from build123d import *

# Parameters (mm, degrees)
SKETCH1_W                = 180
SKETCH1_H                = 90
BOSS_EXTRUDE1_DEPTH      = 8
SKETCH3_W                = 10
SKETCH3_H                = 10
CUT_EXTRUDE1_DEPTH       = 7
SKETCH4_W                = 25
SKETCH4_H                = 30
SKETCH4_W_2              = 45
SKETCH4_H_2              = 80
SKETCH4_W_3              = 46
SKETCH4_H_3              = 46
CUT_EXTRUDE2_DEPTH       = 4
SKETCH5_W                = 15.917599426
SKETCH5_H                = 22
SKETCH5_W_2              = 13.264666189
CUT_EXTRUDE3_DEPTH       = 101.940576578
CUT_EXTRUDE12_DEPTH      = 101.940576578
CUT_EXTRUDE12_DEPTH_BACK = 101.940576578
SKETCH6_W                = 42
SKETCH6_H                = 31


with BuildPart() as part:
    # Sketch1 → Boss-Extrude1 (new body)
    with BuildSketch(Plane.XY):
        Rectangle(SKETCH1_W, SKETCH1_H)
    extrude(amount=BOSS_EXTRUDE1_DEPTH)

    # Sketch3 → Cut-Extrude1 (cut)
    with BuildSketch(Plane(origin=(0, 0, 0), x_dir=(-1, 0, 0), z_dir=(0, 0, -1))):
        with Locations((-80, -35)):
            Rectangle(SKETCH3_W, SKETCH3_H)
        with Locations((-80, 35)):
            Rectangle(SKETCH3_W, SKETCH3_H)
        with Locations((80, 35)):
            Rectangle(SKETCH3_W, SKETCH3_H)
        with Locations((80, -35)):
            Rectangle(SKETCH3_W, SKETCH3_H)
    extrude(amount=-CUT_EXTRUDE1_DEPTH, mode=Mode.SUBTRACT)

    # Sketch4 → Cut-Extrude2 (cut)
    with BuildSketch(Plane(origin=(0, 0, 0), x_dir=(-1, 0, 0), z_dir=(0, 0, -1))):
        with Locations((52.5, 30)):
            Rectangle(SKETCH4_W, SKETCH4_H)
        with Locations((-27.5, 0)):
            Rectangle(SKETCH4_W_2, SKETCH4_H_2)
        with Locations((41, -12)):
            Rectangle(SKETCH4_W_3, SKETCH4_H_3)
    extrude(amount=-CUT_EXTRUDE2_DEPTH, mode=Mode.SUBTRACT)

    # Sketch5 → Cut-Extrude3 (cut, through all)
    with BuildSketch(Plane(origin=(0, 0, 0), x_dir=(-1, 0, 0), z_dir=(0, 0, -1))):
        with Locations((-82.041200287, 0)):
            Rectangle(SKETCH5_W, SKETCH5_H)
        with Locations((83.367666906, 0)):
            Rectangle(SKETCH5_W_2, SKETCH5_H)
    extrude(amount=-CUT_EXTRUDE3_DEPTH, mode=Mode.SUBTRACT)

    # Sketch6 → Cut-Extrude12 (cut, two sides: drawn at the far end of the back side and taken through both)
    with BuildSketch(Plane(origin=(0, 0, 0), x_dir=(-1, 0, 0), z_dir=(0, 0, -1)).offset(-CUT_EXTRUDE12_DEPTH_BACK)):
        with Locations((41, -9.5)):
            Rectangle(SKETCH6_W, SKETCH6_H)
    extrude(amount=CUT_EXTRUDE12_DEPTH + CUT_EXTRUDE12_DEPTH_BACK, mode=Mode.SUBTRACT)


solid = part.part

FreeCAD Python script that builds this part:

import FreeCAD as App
import Part
import Sketcher

V = App.Vector

doc = App.newDocument("Part")
body = doc.addObject("PartDesign::Body", "Body")

sketch1 = body.newObject("Sketcher::SketchObject", "Sketch")
sketch1.AttachmentSupport = (doc.getObject("XY_Plane"), [""])
sketch1.MapMode = "FlatFace"
sketch1.addGeometry(Part.LineSegment(V(-90, 45, 0), V(-90, -45, 0)), False)
sketch1.addGeometry(Part.LineSegment(V(-90, -45, 0), V(90, -45, 0)), False)
sketch1.addGeometry(Part.LineSegment(V(90, -45, 0), V(90, 45, 0)), False)
sketch1.addGeometry(Part.LineSegment(V(90, 45, 0), V(-90, 45, 0)), False)
sketch1.addConstraint(Sketcher.Constraint("Coincident", 0, 2, 1, 1))
sketch1.addConstraint(Sketcher.Constraint("Coincident", 1, 2, 2, 1))
sketch1.addConstraint(Sketcher.Constraint("Coincident", 2, 2, 3, 1))
sketch1.addConstraint(Sketcher.Constraint("Coincident", 3, 2, 0, 1))
sketch1.addConstraint(Sketcher.Constraint("Vertical", 0))
sketch1.addConstraint(Sketcher.Constraint("Horizontal", 1))
sketch1.addConstraint(Sketcher.Constraint("Vertical", 2))
sketch1.addConstraint(Sketcher.Constraint("Horizontal", 3))
sketch1.addConstraint(Sketcher.Constraint("Symmetric", 0, 2, 2, 2, -1, 1))
sketch1.addConstraint(Sketcher.Constraint("DistanceX", 1, 1, 1, 2, 180.0))
sketch1.addConstraint(Sketcher.Constraint("DistanceY", 0, 2, 0, 1, 90.0))
pad1 = body.newObject("PartDesign::Pad", "Pad")
pad1.Profile = sketch1
pad1.Length = 8

sketch2 = body.newObject("Sketcher::SketchObject", "Sketch001")
sketch2.AttachmentSupport = (doc.getObject("XY_Plane"), [""])
sketch2.MapMode = "FlatFace"
sketch2.addGeometry(Part.LineSegment(V(85, -30, 0), V(85, -40, 0)), False)
sketch2.addGeometry(Part.LineSegment(V(85, -40, 0), V(75, -40, 0)), False)
sketch2.addGeometry(Part.LineSegment(V(75, -40, 0), V(75, -30, 0)), False)
sketch2.addGeometry(Part.LineSegment(V(75, -30, 0), V(85, -30, 0)), False)
sketch2.addGeometry(Part.LineSegment(V(85, 40, 0), V(85, 30, 0)), False)
sketch2.addGeometry(Part.LineSegment(V(85, 30, 0), V(75, 30, 0)), False)
sketch2.addGeometry(Part.LineSegment(V(75, 30, 0), V(75, 40, 0)), False)
sketch2.addGeometry(Part.LineSegment(V(75, 40, 0), V(85, 40, 0)), False)
sketch2.addGeometry(Part.LineSegment(V(-75, 40, 0), V(-75, 30, 0)), False)
sketch2.addGeometry(Part.LineSegment(V(-75, 30, 0), V(-85, 30, 0)), False)
sketch2.addGeometry(Part.LineSegment(V(-85, 30, 0), V(-85, 40, 0)), False)
sketch2.addGeometry(Part.LineSegment(V(-85, 40, 0), V(-75, 40, 0)), False)
sketch2.addGeometry(Part.LineSegment(V(-75, -30, 0), V(-75, -40, 0)), False)
sketch2.addGeometry(Part.LineSegment(V(-75, -40, 0), V(-85, -40, 0)), False)
sketch2.addGeometry(Part.LineSegment(V(-85, -40, 0), V(-85, -30, 0)), False)
sketch2.addGeometry(Part.LineSegment(V(-85, -30, 0), V(-75, -30, 0)), False)
sketch2.addConstraint(Sketcher.Constraint("Coincident", 0, 2, 1, 1))
sketch2.addConstraint(Sketcher.Constraint("Coincident", 1, 2, 2, 1))
sketch2.addConstraint(Sketcher.Constraint("Coincident", 2, 2, 3, 1))
sketch2.addConstraint(Sketcher.Constraint("Coincident", 3, 2, 0, 1))
sketch2.addConstraint(Sketcher.Constraint("Coincident", 4, 2, 5, 1))
sketch2.addConstraint(Sketcher.Constraint("Coincident", 5, 2, 6, 1))
sketch2.addConstraint(Sketcher.Constraint("Coincident", 6, 2, 7, 1))
sketch2.addConstraint(Sketcher.Constraint("Coincident", 7, 2, 4, 1))
sketch2.addConstraint(Sketcher.Constraint("Coincident", 8, 2, 9, 1))
sketch2.addConstraint(Sketcher.Constraint("Coincident", 9, 2, 10, 1))
sketch2.addConstraint(Sketcher.Constraint("Coincident", 10, 2, 11, 1))
sketch2.addConstraint(Sketcher.Constraint("Coincident", 11, 2, 8, 1))
sketch2.addConstraint(Sketcher.Constraint("Coincident", 12, 2, 13, 1))
sketch2.addConstraint(Sketcher.Constraint("Coincident", 13, 2, 14, 1))
sketch2.addConstraint(Sketcher.Constraint("Coincident", 14, 2, 15, 1))
sketch2.addConstraint(Sketcher.Constraint("Coincident", 15, 2, 12, 1))
sketch2.addConstraint(Sketcher.Constraint("Vertical", 0))
sketch2.addConstraint(Sketcher.Constraint("Horizontal", 1))
sketch2.addConstraint(Sketcher.Constraint("Vertical", 2))
sketch2.addConstraint(Sketcher.Constraint("Horizontal", 3))
sketch2.addConstraint(Sketcher.Constraint("Vertical", 4))
sketch2.addConstraint(Sketcher.Constraint("Horizontal", 5))
sketch2.addConstraint(Sketcher.Constraint("Vertical", 6))
sketch2.addConstraint(Sketcher.Constraint("Horizontal", 7))
sketch2.addConstraint(Sketcher.Constraint("Vertical", 8))
sketch2.addConstraint(Sketcher.Constraint("Horizontal", 9))
sketch2.addConstraint(Sketcher.Constraint("Vertical", 10))
sketch2.addConstraint(Sketcher.Constraint("Horizontal", 11))
sketch2.addConstraint(Sketcher.Constraint("Vertical", 12))
sketch2.addConstraint(Sketcher.Constraint("Horizontal", 13))
sketch2.addConstraint(Sketcher.Constraint("Vertical", 14))
sketch2.addConstraint(Sketcher.Constraint("Horizontal", 15))
sketch2.addConstraint(Sketcher.Constraint("Symmetric", 2, 2, 8, 2, -1, 1))
sketch2.addConstraint(Sketcher.Constraint("Symmetric", 0, 2, 10, 2, -1, 1))
sketch2.addConstraint(Sketcher.Constraint("Symmetric", 6, 2, 12, 2, -1, 1))
sketch2.addConstraint(Sketcher.Constraint("Symmetric", 4, 2, 14, 2, -1, 1))
sketch2.addConstraint(Sketcher.Constraint("Symmetric", 5, 2, 8, 2, -2))
sketch2.addConstraint(Sketcher.Constraint("Symmetric", 7, 2, 10, 2, -2))
sketch2.addConstraint(Sketcher.Constraint("Equal", 15, 0))
sketch2.addConstraint(Sketcher.Constraint("DistanceX", 1, 2, 1, 1, 10.0))
sketch2.addConstraint(Sketcher.Constraint("DistanceX", -1, 1, 0, 2, 85.0))
sketch2.addConstraint(Sketcher.Constraint("DistanceY", 0, 2, -1, 1, 40.0))
pocket1 = body.newObject("PartDesign::Pocket", "Pocket")
pocket1.Profile = sketch2
pocket1.Length = 7
pocket1.Reversed = True

sketch3 = body.newObject("Sketcher::SketchObject", "Sketch002")
sketch3.AttachmentSupport = (doc.getObject("XY_Plane"), [""])
sketch3.MapMode = "FlatFace"
sketch3.addGeometry(Part.LineSegment(V(-40, 45, 0), V(-40, 15, 0)), False)
sketch3.addGeometry(Part.LineSegment(V(-40, 15, 0), V(-65, 15, 0)), False)
sketch3.addGeometry(Part.LineSegment(V(-65, 15, 0), V(-65, 45, 0)), False)
sketch3.addGeometry(Part.LineSegment(V(-65, 45, 0), V(-40, 45, 0)), False)
sketch3.addGeometry(Part.LineSegment(V(50, 40, 0), V(50, -40, 0)), False)
sketch3.addGeometry(Part.LineSegment(V(50, -40, 0), V(5, -40, 0)), False)
sketch3.addGeometry(Part.LineSegment(V(5, -40, 0), V(5, 40, 0)), False)
sketch3.addGeometry(Part.LineSegment(V(5, 40, 0), V(50, 40, 0)), False)
sketch3.addGeometry(Part.LineSegment(V(-18, 11, 0), V(-18, -35, 0)), False)
sketch3.addGeometry(Part.LineSegment(V(-18, -35, 0), V(-64, -35, 0)), False)
sketch3.addGeometry(Part.LineSegment(V(-64, -35, 0), V(-64, 11, 0)), False)
sketch3.addGeometry(Part.LineSegment(V(-64, 11, 0), V(-18, 11, 0)), False)
sketch3.addConstraint(Sketcher.Constraint("Coincident", 0, 2, 1, 1))
sketch3.addConstraint(Sketcher.Constraint("Coincident", 1, 2, 2, 1))
sketch3.addConstraint(Sketcher.Constraint("Coincident", 2, 2, 3, 1))
sketch3.addConstraint(Sketcher.Constraint("Coincident", 3, 2, 0, 1))
sketch3.addConstraint(Sketcher.Constraint("Coincident", 4, 2, 5, 1))
sketch3.addConstraint(Sketcher.Constraint("Coincident", 5, 2, 6, 1))
sketch3.addConstraint(Sketcher.Constraint("Coincident", 6, 2, 7, 1))
sketch3.addConstraint(Sketcher.Constraint("Coincident", 7, 2, 4, 1))
sketch3.addConstraint(Sketcher.Constraint("Coincident", 8, 2, 9, 1))
sketch3.addConstraint(Sketcher.Constraint("Coincident", 9, 2, 10, 1))
sketch3.addConstraint(Sketcher.Constraint("Coincident", 10, 2, 11, 1))
sketch3.addConstraint(Sketcher.Constraint("Coincident", 11, 2, 8, 1))
sketch3.addConstraint(Sketcher.Constraint("Vertical", 0))
sketch3.addConstraint(Sketcher.Constraint("Horizontal", 1))
sketch3.addConstraint(Sketcher.Constraint("Vertical", 2))
sketch3.addConstraint(Sketcher.Constraint("Horizontal", 3))
sketch3.addConstraint(Sketcher.Constraint("Vertical", 4))
sketch3.addConstraint(Sketcher.Constraint("Horizontal", 5))
sketch3.addConstraint(Sketcher.Constraint("Vertical", 6))
sketch3.addConstraint(Sketcher.Constraint("Horizontal", 7))
sketch3.addConstraint(Sketcher.Constraint("Vertical", 8))
sketch3.addConstraint(Sketcher.Constraint("Horizontal", 9))
sketch3.addConstraint(Sketcher.Constraint("Vertical", 10))
sketch3.addConstraint(Sketcher.Constraint("Horizontal", 11))
sketch3.addConstraint(Sketcher.Constraint("Equal", 11, 8))
sketch3.addConstraint(Sketcher.Constraint("DistanceX", 1, 2, 1, 1, 25.0))
sketch3.addConstraint(Sketcher.Constraint("DistanceX", 5, 2, 5, 1, 45.0))
sketch3.addConstraint(Sketcher.Constraint("DistanceX", 9, 2, 9, 1, 46.0))
sketch3.addConstraint(Sketcher.Constraint("DistanceY", 0, 2, 0, 1, 30.0))
sketch3.addConstraint(Sketcher.Constraint("DistanceY", 4, 2, 4, 1, 80.0))
sketch3.addConstraint(Sketcher.Constraint("DistanceX", 0, 2, -1, 1, 40.0))
sketch3.addConstraint(Sketcher.Constraint("DistanceY", -1, 1, 0, 2, 15.0))
sketch3.addConstraint(Sketcher.Constraint("DistanceX", -1, 1, 4, 2, 50.0))
sketch3.addConstraint(Sketcher.Constraint("DistanceY", 4, 2, -1, 1, 40.0))
sketch3.addConstraint(Sketcher.Constraint("DistanceX", 8, 2, -1, 1, 18.0))
sketch3.addConstraint(Sketcher.Constraint("DistanceY", 8, 2, -1, 1, 35.0))
pocket2 = body.newObject("PartDesign::Pocket", "Pocket001")
pocket2.Profile = sketch3
pocket2.Length = 4
pocket2.Reversed = True

sketch4 = body.newObject("Sketcher::SketchObject", "Sketch003")
sketch4.AttachmentSupport = (doc.getObject("XY_Plane"), [""])
sketch4.MapMode = "FlatFace"
sketch4.addGeometry(Part.LineSegment(V(90, 11, 0), V(90, -11, 0)), False)
sketch4.addGeometry(Part.LineSegment(V(90, -11, 0), V(74.082401, -11, 0)), False)
sketch4.addGeometry(Part.LineSegment(V(74.082401, -11, 0), V(74.082401, 11, 0)), False)
sketch4.addGeometry(Part.LineSegment(V(74.082401, 11, 0), V(90, 11, 0)), False)
sketch4.addGeometry(Part.LineSegment(V(-76.735334, 11, 0), V(-76.735334, -11, 0)), False)
sketch4.addGeometry(Part.LineSegment(V(-76.735334, -11, 0), V(-90, -11, 0)), False)
sketch4.addGeometry(Part.LineSegment(V(-90, -11, 0), V(-90, 11, 0)), False)
sketch4.addGeometry(Part.LineSegment(V(-90, 11, 0), V(-76.735334, 11, 0)), False)
sketch4.addConstraint(Sketcher.Constraint("Coincident", 0, 2, 1, 1))
sketch4.addConstraint(Sketcher.Constraint("Coincident", 1, 2, 2, 1))
sketch4.addConstraint(Sketcher.Constraint("Coincident", 2, 2, 3, 1))
sketch4.addConstraint(Sketcher.Constraint("Coincident", 3, 2, 0, 1))
sketch4.addConstraint(Sketcher.Constraint("Coincident", 4, 2, 5, 1))
sketch4.addConstraint(Sketcher.Constraint("Coincident", 5, 2, 6, 1))
sketch4.addConstraint(Sketcher.Constraint("Coincident", 6, 2, 7, 1))
sketch4.addConstraint(Sketcher.Constraint("Coincident", 7, 2, 4, 1))
sketch4.addConstraint(Sketcher.Constraint("Vertical", 0))
sketch4.addConstraint(Sketcher.Constraint("Horizontal", 1))
sketch4.addConstraint(Sketcher.Constraint("Vertical", 2))
sketch4.addConstraint(Sketcher.Constraint("Horizontal", 3))
sketch4.addConstraint(Sketcher.Constraint("Vertical", 4))
sketch4.addConstraint(Sketcher.Constraint("Horizontal", 5))
sketch4.addConstraint(Sketcher.Constraint("Vertical", 6))
sketch4.addConstraint(Sketcher.Constraint("Horizontal", 7))
sketch4.addConstraint(Sketcher.Constraint("Symmetric", 3, 2, 5, 2, -1, 1))
sketch4.addConstraint(Sketcher.Constraint("Horizontal", 1, 2, 4, 2))
sketch4.addConstraint(Sketcher.Constraint("Horizontal", 3, 2, 6, 2))
sketch4.addConstraint(Sketcher.Constraint("DistanceY", 0, 2, 0, 1, 22.0))
sketch4.addConstraint(Sketcher.Constraint("DistanceX", -1, 1, 0, 2, 90.0))
sketch4.addConstraint(Sketcher.Constraint("DistanceX", 1, 2, 1, 1, 15.917599))
sketch4.addConstraint(Sketcher.Constraint("DistanceX", 5, 2, 5, 1, 13.264666))
pocket3 = body.newObject("PartDesign::Pocket", "Pocket002")
pocket3.Profile = sketch4
pocket3.Type = "ThroughAll"
pocket3.Reversed = True

sketch5 = body.newObject("Sketcher::SketchObject", "Sketch004")
sketch5.AttachmentSupport = (doc.getObject("XY_Plane"), [""])
sketch5.MapMode = "FlatFace"
sketch5.addGeometry(Part.LineSegment(V(-20, 6, 0), V(-20, -25, 0)), False)
sketch5.addGeometry(Part.LineSegment(V(-20, -25, 0), V(-62, -25, 0)), False)
sketch5.addGeometry(Part.LineSegment(V(-62, -25, 0), V(-62, 6, 0)), False)
sketch5.addGeometry(Part.LineSegment(V(-62, 6, 0), V(-20, 6, 0)), False)
sketch5.addConstraint(Sketcher.Constraint("Coincident", 0, 2, 1, 1))
sketch5.addConstraint(Sketcher.Constraint("Coincident", 1, 2, 2, 1))
sketch5.addConstraint(Sketcher.Constraint("Coincident", 2, 2, 3, 1))
sketch5.addConstraint(Sketcher.Constraint("Coincident", 3, 2, 0, 1))
sketch5.addConstraint(Sketcher.Constraint("Vertical", 0))
sketch5.addConstraint(Sketcher.Constraint("Horizontal", 1))
sketch5.addConstraint(Sketcher.Constraint("Vertical", 2))
sketch5.addConstraint(Sketcher.Constraint("Horizontal", 3))
sketch5.addConstraint(Sketcher.Constraint("DistanceX", 1, 2, 1, 1, 42.0))
sketch5.addConstraint(Sketcher.Constraint("DistanceY", 0, 2, 0, 1, 31.0))
sketch5.addConstraint(Sketcher.Constraint("DistanceX", 0, 2, -1, 1, 20.0))
sketch5.addConstraint(Sketcher.Constraint("DistanceY", 0, 2, -1, 1, 25.0))
pocket4 = body.newObject("PartDesign::Pocket", "Pocket003")
pocket4.Profile = sketch5
pocket4.Type = "ThroughAll"
pocket4.Midplane = True

doc.recompute()
